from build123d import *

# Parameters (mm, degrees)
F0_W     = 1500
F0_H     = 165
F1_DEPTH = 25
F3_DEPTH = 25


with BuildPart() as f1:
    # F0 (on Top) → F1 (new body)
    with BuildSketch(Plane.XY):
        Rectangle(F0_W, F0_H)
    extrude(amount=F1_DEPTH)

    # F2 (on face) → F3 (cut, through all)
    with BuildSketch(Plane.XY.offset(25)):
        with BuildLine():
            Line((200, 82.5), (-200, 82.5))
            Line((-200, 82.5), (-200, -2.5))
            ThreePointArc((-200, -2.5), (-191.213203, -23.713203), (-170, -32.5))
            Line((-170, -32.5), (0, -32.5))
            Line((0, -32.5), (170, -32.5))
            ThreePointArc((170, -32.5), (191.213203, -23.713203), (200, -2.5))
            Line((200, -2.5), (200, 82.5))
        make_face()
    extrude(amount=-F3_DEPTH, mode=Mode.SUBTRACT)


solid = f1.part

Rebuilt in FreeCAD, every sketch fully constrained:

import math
import FreeCAD as App
import Part
import Sketcher

V = App.Vector
Q = App.Units.Quantity


def add_polygon(sketch, points):
    """Adds a closed chain of lines whose ends are joined by coincident constraints."""
    first, n = sketch.GeometryCount, len(points)
    for a, b in zip(points, points[1:] + points[:1]):
        sketch.addGeometry(Part.LineSegment(App.Vector(*a, 0), App.Vector(*b, 0)), False)
    for i in range(n):
        sketch.addConstraint(Sketcher.Constraint("Coincident", first + i, 2, first + (i + 1) % n, 1))

doc = App.newDocument("Part")
body = doc.addObject("PartDesign::Body", "Body")

sketch1 = body.newObject("Sketcher::SketchObject", "Sketch")
sketch1.AttachmentSupport = (doc.getObject("XY_Plane"), [""])
sketch1.MapMode = "FlatFace"
add_polygon(sketch1, [(-750, 82), (-750, -82), (750, -82), (750, 82)])
sketch1.addConstraint([
    Sketcher.Constraint("Vertical", 0),
    Sketcher.Constraint("Horizontal", 1),
    Sketcher.Constraint("Vertical", 2),
    Sketcher.Constraint("Horizontal", 3),
    Sketcher.Constraint("Symmetric", 0, 2, 2, 2, -1, 1),
    Sketcher.Constraint("DistanceX", 1, 1, 1, 2, Q("1500 mm")),
    Sketcher.Constraint("DistanceY", 0, 2, 0, 1, Q("165 mm")),
])
pad1 = body.newObject("PartDesign::Pad", "Pad")
pad1.Profile = sketch1
pad1.Length = 25

sketch2 = body.newObject("Sketcher::SketchObject", "Sketch001")
sketch2.AttachmentSupport = (doc.getObject("XY_Plane"), [""])
sketch2.MapMode = "FlatFace"
sketch2.AttachmentOffset = App.Placement(V(0, 0, 25), App.Rotation())
sketch2.addGeometry([
    Part.LineSegment(V(200, 82, 0), V(-200, 82, 0)),
    Part.LineSegment(V(-200, 82, 0), V(-200, -2, 0)),
    Part.ArcOfCircle(Part.Circle(V(-170, -2, 0), V(0, 0, 1), 30), math.radians(-180), math.radians(-90)),
    Part.LineSegment(V(-170, -32, 0), V(170, -32, 0)),
    Part.ArcOfCircle(Part.Circle(V(170, -2, 0), V(0, 0, 1), 30), math.radians(-90), math.radians(0)),
    Part.LineSegment(V(200, -2, 0), V(200, 82, 0)),
], False)
sketch2.addConstraint([
    Sketcher.Constraint("Coincident", 0, 2, 1, 1),
    Sketcher.Constraint("Tangent", 1, 2, 2, 1),
    Sketcher.Constraint("Tangent", 2, 2, 3, 1),
    Sketcher.Constraint("Tangent", 3, 2, 4, 1),
    Sketcher.Constraint("Tangent", 4, 2, 5, 1),
    Sketcher.Constraint("Coincident", 5, 2, 0, 1),
    Sketcher.Constraint("Horizontal", 0),
    Sketcher.Constraint("Vertical", 1),
    Sketcher.Constraint("Horizontal", 3),
    Sketcher.Constraint("Vertical", 5),
    Sketcher.Constraint("Equal", 2, 4),
    Sketcher.Constraint("Radius", 2, Q("30.000001 mm")),
    Sketcher.Constraint("DistanceX", 0, 2, 0, 1, Q("400 mm")),
    Sketcher.Constraint("DistanceY", 1, 2, 1, 1, Q("85 mm")),
    Sketcher.Constraint("DistanceX", 2, 3, -1, 1, Q("169.999999 mm")),
    Sketcher.Constraint("DistanceY", 2, 3, -1, 1, Q("2.499999 mm")),
])
pocket1 = body.newObject("PartDesign::Pocket", "Pocket")
pocket1.Profile = sketch2
pocket1.Type = "ThroughAll"

doc.recompute()
